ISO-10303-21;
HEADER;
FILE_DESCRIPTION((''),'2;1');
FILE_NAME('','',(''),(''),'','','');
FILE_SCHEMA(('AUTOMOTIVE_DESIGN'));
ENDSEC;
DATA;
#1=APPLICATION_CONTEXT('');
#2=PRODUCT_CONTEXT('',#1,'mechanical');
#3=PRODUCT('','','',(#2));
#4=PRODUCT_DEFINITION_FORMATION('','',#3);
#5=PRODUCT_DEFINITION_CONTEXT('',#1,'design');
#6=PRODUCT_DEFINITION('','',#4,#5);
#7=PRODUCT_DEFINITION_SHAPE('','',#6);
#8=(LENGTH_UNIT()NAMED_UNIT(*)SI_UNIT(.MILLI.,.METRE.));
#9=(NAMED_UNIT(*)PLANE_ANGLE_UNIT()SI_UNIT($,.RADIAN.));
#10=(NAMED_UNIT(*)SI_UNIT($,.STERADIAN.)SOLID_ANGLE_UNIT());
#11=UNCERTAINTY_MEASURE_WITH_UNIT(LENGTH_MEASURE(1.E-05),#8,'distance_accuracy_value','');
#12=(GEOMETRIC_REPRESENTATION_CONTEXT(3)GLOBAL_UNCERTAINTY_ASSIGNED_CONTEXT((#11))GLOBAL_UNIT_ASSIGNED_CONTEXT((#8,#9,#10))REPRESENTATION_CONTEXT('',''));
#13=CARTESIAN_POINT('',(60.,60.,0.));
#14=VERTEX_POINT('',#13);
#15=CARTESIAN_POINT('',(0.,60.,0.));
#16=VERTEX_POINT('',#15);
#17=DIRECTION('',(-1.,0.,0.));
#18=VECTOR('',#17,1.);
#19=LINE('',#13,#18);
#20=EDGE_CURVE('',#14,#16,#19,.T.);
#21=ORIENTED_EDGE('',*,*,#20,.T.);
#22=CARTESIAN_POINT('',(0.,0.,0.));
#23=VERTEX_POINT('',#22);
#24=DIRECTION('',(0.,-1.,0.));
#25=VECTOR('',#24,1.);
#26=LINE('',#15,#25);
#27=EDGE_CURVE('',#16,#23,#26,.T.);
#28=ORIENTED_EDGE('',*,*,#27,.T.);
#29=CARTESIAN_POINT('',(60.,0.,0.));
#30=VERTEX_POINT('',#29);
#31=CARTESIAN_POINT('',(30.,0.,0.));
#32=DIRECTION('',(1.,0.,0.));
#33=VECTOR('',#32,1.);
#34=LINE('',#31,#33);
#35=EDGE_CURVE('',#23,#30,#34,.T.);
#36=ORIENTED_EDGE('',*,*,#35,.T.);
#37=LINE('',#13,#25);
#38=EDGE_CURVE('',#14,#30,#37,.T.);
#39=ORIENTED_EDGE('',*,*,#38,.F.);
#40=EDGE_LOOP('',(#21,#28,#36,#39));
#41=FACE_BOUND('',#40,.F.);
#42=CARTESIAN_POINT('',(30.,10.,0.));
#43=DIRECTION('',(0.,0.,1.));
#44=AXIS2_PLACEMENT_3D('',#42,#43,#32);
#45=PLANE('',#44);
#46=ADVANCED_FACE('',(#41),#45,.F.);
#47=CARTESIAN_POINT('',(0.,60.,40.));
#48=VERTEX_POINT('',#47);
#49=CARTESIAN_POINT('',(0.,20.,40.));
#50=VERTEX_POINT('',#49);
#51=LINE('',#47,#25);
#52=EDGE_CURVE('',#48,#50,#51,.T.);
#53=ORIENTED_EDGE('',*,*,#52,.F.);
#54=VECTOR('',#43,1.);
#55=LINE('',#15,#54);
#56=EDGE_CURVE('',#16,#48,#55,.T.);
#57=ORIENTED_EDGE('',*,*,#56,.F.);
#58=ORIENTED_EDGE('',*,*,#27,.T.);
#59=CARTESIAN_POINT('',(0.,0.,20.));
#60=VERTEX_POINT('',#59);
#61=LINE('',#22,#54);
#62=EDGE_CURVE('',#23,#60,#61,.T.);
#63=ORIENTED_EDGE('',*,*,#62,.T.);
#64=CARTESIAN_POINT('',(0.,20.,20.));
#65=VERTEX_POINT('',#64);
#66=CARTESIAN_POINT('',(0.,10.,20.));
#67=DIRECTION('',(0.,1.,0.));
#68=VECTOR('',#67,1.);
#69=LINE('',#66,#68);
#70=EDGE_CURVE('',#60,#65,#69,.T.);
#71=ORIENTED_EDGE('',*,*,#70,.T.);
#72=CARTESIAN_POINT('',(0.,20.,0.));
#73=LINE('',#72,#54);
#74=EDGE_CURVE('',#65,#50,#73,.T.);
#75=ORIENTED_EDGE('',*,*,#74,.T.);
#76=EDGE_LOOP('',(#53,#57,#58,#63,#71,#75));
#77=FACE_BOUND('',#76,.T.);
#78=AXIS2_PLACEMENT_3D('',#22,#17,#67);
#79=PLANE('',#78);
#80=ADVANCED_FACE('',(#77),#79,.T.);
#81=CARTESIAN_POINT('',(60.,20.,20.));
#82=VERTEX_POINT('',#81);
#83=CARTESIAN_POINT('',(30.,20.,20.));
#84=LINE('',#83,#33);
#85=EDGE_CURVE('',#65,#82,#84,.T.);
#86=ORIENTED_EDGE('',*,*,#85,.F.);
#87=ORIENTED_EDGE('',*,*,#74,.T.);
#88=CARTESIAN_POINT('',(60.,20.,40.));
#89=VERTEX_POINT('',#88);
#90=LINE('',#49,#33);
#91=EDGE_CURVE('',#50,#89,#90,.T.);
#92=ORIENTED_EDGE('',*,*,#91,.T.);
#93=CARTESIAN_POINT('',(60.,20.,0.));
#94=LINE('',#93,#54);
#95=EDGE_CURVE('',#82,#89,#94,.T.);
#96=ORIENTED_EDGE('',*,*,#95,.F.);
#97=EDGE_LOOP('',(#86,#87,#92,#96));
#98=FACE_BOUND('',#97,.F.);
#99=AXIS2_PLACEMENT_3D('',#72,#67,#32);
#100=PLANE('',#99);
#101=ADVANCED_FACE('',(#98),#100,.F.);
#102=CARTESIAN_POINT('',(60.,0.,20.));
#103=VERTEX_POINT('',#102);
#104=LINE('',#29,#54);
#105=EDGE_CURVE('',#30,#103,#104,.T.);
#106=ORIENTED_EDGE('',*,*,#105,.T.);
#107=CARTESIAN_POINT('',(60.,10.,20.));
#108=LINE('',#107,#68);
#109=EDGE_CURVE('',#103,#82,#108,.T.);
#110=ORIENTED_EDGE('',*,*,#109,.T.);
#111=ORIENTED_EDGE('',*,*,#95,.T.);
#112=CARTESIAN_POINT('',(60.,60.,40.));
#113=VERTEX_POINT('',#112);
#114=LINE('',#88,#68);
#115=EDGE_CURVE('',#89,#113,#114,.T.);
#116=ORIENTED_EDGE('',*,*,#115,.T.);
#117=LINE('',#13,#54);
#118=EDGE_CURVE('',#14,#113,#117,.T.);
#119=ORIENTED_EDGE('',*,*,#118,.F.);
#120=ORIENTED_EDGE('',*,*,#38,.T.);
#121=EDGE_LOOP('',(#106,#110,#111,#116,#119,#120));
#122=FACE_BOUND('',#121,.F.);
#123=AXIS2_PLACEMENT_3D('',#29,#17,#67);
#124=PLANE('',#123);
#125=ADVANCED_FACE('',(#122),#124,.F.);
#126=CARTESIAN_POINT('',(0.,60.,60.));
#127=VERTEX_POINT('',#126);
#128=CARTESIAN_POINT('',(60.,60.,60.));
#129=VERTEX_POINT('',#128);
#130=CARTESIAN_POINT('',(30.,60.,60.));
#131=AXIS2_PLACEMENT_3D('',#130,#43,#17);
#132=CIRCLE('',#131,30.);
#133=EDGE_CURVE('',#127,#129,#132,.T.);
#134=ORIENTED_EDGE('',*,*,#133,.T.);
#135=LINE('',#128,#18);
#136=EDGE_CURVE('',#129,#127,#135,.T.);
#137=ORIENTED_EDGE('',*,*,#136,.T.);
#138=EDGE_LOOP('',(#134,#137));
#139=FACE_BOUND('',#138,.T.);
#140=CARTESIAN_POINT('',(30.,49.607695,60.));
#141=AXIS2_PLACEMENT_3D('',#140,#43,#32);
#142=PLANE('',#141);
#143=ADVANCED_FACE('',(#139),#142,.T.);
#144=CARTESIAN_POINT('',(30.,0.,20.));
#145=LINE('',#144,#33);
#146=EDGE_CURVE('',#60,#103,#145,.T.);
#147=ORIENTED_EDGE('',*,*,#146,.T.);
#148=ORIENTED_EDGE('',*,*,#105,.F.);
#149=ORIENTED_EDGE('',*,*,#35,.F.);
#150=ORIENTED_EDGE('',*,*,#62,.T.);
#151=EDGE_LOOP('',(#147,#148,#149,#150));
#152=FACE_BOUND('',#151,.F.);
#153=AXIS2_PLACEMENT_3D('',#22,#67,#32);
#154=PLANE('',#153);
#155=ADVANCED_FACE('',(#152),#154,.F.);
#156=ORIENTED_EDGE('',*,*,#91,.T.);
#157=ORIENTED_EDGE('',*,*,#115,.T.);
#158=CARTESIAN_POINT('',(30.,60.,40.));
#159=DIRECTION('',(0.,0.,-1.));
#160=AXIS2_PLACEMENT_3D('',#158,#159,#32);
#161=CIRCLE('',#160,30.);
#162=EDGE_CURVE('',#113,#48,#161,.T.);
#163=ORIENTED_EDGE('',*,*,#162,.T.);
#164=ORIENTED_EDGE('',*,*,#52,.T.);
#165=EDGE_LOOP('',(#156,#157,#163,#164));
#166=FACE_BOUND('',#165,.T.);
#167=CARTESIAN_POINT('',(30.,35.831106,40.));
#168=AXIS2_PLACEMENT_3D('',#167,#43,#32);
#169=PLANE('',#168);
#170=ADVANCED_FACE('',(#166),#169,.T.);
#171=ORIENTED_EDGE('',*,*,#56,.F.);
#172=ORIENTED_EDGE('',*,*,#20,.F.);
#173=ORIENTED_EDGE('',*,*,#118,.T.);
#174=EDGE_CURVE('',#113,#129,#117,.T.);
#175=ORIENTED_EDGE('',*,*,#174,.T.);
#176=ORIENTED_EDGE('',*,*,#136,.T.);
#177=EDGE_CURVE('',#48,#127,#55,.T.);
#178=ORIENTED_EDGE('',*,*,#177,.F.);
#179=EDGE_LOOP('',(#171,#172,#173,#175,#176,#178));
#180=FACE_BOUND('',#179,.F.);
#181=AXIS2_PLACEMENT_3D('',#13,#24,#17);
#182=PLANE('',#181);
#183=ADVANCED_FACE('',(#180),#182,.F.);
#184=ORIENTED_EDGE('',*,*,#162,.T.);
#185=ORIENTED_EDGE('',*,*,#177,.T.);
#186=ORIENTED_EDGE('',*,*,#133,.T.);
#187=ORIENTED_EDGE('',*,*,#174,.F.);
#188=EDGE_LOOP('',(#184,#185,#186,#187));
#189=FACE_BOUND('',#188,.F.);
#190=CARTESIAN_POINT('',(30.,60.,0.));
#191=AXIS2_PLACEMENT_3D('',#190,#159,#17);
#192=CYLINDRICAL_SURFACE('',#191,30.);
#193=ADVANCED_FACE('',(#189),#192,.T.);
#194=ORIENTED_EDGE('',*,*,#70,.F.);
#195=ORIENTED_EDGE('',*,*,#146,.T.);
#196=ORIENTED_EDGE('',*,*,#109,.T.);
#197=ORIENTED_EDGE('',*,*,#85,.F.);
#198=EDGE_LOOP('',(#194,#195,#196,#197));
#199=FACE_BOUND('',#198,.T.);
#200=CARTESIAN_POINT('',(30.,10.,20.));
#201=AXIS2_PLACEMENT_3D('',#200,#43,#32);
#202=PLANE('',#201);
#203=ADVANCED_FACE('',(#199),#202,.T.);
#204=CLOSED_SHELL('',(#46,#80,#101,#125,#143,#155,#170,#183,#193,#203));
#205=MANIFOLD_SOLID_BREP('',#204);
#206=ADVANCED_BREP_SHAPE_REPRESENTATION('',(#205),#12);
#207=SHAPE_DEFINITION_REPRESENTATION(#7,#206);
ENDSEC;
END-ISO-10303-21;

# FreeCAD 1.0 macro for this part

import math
import FreeCAD as App
import Part
import Sketcher
from FreeCAD import Vector
Q = App.Units.Quantity


def add_polygon(sketch, points):
    """Adds a closed chain of lines whose ends are joined by coincident constraints."""
    first, n = sketch.GeometryCount, len(points)
    for a, b in zip(points, points[1:] + points[:1]):
        sketch.addGeometry(Part.LineSegment(App.Vector(*a, 0), App.Vector(*b, 0)), False)
    for i in range(n):
        sketch.addConstraint(Sketcher.Constraint("Coincident", first + i, 2, first + (i + 1) % n, 1))

doc = App.newDocument("Part")
body = doc.addObject("PartDesign::Body", "Body")

# Sketch on XY plane
sketch1 = body.newObject("Sketcher::SketchObject", "Sketch")
sketch1.AttachmentSupport = (doc.getObject("XY_Plane"), [""])
sketch1.MapMode = "FlatFace"
sketch1.addGeometry([
    Part.LineSegment(Vector(60, 60, 0), Vector(0, 60, 0)),
    Part.ArcOfCircle(Part.Circle(Vector(30, 60, 0), Vector(0, 0, 1), 30), math.radians(180), math.radians(360)),
], False)
sketch1.addConstraint([
    Sketcher.Constraint("Coincident", 0, 1, 1, 2),
    Sketcher.Constraint("Coincident", 1, 1, 0, 2),
    Sketcher.Constraint("Horizontal", 0),
    Sketcher.Constraint("PointOnObject", 1, 1, -2),
    Sketcher.Constraint("Horizontal", 1, 3, 0, 1),
    Sketcher.Constraint("Radius", 1, Q("30 mm")),
    Sketcher.Constraint("DistanceY", -1, 1, 1, 3, Q("60 mm")),
])
pad1 = body.newObject("PartDesign::Pad", "Pad")
pad1.Profile = sketch1
pad1.Length = 60

# Sketch on XY plane
sketch2 = body.newObject("Sketcher::SketchObject", "Sketch001")
sketch2.AttachmentSupport = (doc.getObject("XY_Plane"), [""])
sketch2.MapMode = "FlatFace"
sketch2.addGeometry([
    Part.LineSegment(Vector(0, 60, 0), Vector(0, 20, 0)),
    Part.LineSegment(Vector(0, 20, 0), Vector(60, 20, 0)),
    Part.LineSegment(Vector(60, 20, 0), Vector(60, 60, 0)),
    Part.ArcOfCircle(Part.Circle(Vector(30, 60, 0), Vector(0, 0, 1), 30), math.radians(180), math.radians(360)),
], False)
sketch2.addConstraint([
    Sketcher.Constraint("Coincident", 0, 2, 1, 1),
    Sketcher.Constraint("Coincident", 1, 2, 2, 1),
    Sketcher.Constraint("Tangent", 2, 2, 3, 2),
    Sketcher.Constraint("Tangent", 3, 1, 0, 1),
    Sketcher.Constraint("Vertical", 0),
    Sketcher.Constraint("Horizontal", 1),
    Sketcher.Constraint("Vertical", 2),
    Sketcher.Constraint("PointOnObject", 0, 2, -2),
    Sketcher.Constraint("Radius", 3, Q("30 mm")),
    Sketcher.Constraint("DistanceY", 0, 2, 0, 1, Q("40 mm")),
    Sketcher.Constraint("DistanceY", -1, 1, 3, 3, Q("60 mm")),
])
pad2 = body.newObject("PartDesign::Pad", "Pad001")
pad2.Profile = sketch2
pad2.Length = 40

# Sketch on XY plane
sketch3 = body.newObject("Sketcher::SketchObject", "Sketch002")
sketch3.AttachmentSupport = (doc.getObject("XY_Plane"), [""])
sketch3.MapMode = "FlatFace"
add_polygon(sketch3, [(0, 20), (0, 0), (60, 0), (60, 20)])  # lines 0-3
sketch3.addConstraint([
    Sketcher.Constraint("Vertical", 0),
    Sketcher.Constraint("Horizontal", 1),
    Sketcher.Constraint("Vertical", 2),
    Sketcher.Constraint("Horizontal", 3),
    Sketcher.Constraint("Coincident", 0, 2, -1, 1),
    Sketcher.Constraint("DistanceX", 1, 1, 1, 2, Q("60 mm")),
    Sketcher.Constraint("DistanceY", 0, 2, 0, 1, Q("20 mm")),
])
pad3 = body.newObject("PartDesign::Pad", "Pad002")
pad3.Profile = sketch3
pad3.Length = 20

doc.recompute()
